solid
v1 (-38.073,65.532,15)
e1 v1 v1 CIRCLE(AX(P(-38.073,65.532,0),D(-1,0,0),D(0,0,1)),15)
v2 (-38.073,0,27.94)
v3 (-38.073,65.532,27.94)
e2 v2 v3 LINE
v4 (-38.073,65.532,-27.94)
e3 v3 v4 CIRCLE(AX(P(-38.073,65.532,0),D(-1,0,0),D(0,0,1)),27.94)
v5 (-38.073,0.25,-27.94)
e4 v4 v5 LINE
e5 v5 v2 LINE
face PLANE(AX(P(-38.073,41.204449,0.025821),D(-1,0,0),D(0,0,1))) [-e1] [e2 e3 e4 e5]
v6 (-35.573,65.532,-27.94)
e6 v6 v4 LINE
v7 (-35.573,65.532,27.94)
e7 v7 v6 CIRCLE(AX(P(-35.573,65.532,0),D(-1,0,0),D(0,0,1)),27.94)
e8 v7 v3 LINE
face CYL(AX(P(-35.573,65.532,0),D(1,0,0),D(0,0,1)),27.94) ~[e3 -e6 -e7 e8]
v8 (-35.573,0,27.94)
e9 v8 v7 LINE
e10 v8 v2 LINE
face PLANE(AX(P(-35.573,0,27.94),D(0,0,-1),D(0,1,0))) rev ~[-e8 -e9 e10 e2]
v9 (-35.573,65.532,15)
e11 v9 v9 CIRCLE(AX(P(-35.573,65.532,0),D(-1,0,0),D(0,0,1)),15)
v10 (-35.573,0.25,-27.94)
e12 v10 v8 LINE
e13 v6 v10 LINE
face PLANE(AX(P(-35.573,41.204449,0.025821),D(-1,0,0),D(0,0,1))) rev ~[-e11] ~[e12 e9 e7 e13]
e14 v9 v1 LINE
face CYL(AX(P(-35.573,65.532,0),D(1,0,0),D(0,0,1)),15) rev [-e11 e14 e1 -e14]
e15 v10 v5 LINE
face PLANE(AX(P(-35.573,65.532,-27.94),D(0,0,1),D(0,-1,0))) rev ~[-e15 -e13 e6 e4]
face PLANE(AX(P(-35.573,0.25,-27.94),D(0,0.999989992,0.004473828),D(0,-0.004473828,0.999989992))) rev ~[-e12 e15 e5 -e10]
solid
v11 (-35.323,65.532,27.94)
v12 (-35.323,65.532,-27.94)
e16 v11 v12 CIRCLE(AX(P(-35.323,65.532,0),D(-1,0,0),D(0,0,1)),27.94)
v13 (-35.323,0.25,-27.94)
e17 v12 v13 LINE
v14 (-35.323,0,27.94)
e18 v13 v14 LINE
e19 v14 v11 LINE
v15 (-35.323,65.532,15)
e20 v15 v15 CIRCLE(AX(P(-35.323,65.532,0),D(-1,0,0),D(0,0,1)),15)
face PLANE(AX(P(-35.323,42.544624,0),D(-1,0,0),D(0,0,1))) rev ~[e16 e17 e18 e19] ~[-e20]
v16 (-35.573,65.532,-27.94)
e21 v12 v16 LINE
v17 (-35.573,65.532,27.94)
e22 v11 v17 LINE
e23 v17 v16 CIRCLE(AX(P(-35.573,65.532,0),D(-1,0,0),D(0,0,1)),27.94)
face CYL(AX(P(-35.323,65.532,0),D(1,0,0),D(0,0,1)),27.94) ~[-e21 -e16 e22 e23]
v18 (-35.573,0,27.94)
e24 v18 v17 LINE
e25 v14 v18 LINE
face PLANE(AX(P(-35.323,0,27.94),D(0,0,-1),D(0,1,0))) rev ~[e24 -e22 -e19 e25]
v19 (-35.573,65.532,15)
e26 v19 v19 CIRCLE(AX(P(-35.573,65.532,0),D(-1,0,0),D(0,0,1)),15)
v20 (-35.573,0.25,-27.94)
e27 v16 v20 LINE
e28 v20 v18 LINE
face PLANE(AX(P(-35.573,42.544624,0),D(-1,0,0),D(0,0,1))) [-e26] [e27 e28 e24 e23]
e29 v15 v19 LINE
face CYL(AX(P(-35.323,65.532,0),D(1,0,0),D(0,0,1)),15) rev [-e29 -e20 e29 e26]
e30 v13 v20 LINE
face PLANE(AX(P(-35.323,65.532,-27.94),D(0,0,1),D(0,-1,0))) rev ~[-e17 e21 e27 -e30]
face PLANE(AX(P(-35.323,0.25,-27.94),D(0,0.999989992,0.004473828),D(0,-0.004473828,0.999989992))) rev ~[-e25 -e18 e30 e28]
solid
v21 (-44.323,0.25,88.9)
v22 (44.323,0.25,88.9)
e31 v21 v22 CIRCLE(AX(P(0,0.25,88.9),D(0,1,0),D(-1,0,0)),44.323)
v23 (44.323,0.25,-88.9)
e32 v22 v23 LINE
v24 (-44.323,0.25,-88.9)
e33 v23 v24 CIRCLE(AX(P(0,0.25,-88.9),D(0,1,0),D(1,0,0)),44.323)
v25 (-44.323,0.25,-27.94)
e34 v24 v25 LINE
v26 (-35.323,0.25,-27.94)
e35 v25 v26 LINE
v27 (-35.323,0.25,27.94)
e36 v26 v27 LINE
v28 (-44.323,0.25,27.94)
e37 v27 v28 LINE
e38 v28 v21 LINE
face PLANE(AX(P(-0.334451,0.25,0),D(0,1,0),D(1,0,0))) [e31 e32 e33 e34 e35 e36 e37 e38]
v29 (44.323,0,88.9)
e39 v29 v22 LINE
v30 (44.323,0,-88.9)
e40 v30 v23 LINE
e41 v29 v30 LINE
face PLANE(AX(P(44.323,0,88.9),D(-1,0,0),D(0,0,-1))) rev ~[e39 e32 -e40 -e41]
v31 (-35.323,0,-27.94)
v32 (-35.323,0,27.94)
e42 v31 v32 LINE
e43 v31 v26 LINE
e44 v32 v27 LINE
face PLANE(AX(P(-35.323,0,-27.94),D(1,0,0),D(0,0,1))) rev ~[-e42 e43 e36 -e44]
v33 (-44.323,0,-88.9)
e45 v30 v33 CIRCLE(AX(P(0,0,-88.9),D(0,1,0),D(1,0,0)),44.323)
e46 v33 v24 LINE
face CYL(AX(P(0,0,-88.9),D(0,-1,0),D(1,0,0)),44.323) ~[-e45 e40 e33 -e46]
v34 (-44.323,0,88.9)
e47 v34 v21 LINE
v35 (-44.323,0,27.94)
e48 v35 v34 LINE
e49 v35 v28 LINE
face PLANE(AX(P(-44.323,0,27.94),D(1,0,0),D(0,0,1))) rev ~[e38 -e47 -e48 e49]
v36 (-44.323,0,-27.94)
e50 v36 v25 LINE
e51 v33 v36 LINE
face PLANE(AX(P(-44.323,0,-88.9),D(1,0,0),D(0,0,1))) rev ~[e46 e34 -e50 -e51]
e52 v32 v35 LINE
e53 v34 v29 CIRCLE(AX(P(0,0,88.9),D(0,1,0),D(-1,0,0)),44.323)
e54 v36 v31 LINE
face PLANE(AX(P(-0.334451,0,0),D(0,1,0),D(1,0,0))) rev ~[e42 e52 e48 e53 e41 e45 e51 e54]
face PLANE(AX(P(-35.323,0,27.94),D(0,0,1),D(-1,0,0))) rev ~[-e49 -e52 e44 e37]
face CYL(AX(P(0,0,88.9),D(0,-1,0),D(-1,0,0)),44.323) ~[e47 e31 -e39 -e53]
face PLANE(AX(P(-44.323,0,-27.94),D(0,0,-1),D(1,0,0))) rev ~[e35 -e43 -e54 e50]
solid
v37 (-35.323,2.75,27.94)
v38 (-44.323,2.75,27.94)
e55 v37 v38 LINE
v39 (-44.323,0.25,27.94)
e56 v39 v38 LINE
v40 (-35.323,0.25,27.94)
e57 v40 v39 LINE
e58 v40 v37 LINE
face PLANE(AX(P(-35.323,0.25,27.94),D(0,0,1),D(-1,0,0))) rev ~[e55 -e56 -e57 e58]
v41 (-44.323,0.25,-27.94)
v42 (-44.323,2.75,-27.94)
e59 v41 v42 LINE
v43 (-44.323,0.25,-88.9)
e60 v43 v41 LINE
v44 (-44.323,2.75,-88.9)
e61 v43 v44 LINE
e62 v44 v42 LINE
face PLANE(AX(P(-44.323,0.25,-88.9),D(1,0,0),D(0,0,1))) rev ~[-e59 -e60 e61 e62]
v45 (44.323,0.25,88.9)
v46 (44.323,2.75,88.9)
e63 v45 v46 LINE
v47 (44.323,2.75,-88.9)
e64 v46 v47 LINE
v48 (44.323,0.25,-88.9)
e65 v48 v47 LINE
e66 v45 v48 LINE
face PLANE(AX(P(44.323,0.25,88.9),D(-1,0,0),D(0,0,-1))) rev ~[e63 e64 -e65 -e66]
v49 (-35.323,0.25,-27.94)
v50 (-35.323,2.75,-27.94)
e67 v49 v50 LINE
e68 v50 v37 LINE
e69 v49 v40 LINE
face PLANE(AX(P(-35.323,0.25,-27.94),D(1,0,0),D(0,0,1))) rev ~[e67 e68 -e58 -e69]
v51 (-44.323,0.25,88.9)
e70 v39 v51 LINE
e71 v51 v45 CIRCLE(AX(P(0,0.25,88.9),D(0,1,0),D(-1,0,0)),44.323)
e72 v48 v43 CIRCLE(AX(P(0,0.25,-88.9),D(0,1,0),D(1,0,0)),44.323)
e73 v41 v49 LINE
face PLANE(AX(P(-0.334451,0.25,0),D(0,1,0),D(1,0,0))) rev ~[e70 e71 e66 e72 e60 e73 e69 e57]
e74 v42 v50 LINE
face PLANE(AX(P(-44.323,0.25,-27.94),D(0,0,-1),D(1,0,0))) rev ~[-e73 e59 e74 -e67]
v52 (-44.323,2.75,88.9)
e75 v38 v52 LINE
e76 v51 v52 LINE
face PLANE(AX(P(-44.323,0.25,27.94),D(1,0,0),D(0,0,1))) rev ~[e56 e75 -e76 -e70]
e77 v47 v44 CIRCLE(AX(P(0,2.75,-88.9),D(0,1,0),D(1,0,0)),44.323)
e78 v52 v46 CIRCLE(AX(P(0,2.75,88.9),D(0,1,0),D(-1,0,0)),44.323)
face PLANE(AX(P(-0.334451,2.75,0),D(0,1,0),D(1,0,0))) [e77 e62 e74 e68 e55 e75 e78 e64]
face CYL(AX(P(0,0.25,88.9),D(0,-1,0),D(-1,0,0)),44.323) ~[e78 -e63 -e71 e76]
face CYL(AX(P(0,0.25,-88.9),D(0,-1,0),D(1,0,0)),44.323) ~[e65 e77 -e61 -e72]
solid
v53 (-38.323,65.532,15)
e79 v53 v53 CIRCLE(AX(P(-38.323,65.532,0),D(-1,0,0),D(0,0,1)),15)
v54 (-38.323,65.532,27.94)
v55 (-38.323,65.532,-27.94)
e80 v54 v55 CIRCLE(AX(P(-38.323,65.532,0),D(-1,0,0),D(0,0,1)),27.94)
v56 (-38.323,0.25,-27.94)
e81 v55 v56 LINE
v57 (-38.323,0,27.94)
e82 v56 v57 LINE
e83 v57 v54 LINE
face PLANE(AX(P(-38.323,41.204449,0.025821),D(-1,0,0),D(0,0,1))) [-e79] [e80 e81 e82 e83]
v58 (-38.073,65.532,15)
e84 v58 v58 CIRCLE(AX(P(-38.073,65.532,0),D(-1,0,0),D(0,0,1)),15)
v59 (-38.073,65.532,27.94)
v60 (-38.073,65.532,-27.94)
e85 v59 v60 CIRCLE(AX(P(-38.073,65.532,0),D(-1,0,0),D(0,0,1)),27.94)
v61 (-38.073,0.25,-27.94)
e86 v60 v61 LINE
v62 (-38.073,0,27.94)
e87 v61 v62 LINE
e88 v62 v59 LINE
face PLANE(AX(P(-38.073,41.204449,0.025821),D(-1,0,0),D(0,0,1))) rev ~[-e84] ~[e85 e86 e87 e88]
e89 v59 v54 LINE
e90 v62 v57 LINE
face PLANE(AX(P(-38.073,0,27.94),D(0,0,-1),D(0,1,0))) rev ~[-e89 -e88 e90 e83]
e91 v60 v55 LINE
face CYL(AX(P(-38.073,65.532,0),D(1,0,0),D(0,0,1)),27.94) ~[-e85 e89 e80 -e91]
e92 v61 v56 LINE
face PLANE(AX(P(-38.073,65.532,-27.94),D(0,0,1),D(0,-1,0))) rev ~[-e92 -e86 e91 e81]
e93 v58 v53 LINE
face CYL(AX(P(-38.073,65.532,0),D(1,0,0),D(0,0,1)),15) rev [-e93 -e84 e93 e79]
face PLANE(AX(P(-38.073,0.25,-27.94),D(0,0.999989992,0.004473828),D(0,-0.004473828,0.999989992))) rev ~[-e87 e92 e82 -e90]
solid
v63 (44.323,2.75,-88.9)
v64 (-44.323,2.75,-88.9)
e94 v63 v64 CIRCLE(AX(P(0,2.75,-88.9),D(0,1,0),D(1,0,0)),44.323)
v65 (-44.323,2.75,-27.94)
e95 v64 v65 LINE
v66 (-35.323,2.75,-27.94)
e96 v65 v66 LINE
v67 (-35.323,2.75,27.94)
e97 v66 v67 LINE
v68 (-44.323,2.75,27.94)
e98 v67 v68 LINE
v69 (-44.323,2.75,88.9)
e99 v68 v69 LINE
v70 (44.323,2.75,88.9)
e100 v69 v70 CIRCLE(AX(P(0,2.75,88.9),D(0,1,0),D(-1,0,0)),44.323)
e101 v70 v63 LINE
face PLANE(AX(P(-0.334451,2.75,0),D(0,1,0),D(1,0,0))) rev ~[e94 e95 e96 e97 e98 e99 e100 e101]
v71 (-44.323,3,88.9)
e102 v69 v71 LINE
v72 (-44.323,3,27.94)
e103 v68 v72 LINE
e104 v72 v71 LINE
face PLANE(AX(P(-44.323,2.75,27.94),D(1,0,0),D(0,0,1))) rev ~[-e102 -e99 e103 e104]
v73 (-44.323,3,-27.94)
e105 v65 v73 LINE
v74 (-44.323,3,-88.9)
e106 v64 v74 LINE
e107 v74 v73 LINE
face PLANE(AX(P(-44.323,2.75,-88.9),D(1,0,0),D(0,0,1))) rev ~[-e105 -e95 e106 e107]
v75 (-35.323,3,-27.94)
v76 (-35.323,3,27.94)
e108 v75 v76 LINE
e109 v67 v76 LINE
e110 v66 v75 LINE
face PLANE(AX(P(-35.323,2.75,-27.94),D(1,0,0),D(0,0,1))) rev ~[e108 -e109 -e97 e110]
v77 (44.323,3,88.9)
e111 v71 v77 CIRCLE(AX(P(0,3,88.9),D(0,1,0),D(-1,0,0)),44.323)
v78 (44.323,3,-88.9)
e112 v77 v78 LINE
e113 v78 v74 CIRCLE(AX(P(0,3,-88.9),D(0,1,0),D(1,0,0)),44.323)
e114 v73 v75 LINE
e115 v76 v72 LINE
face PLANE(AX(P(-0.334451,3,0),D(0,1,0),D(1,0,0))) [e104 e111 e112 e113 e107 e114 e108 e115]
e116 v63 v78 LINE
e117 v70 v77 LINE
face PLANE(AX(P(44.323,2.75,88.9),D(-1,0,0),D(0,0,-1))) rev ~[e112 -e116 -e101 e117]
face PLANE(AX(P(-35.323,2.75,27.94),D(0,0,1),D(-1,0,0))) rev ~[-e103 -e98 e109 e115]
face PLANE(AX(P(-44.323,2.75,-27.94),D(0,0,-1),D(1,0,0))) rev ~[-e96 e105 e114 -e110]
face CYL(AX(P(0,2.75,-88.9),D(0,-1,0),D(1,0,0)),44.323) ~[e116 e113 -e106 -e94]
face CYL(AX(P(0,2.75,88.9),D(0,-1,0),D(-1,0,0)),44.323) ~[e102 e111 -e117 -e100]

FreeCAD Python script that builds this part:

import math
import FreeCAD as App
import Part
import Sketcher
from FreeCAD import Vector
Q = App.Units.Quantity

doc = App.newDocument("Part")
body = doc.addObject("PartDesign::Body", "Body")

# Sketch on XZ plane
sketch1 = doc.addObject("Sketcher::SketchObject", "Sketch")
body.addObject(sketch1)
sketch1.AttachmentSupport = (doc.XZ_Plane, [""])
sketch1.MapMode = "FlatFace"
sketch1.addGeometry([
    Part.LineSegment(Vector(-44.323, -88.9, 0), Vector(-44.323, -27.94, 0)),  # 0
    Part.LineSegment(Vector(-44.323, -27.94, 0), Vector(-35.323, -27.94, 0)),  # 1
    Part.LineSegment(Vector(-35.323, -27.94, 0), Vector(-35.323, 27.94, 0)),  # 2
    Part.LineSegment(Vector(-35.323, 27.94, 0), Vector(-44.323, 27.94, 0)),  # 3
    Part.LineSegment(Vector(-44.323, 27.94, 0), Vector(-44.323, 88.9, 0)),  # 4
    Part.ArcOfCircle(Part.Circle(Vector(0, 88.9, 0), Vector(0, 0, 1), 44.323), math.radians(0), math.radians(180)),  # 5
    Part.LineSegment(Vector(44.323, 88.9, 0), Vector(44.323, -88.9, 0)),  # 6
    Part.ArcOfCircle(Part.Circle(Vector(0, -88.9, 0), Vector(0, 0, 1), 44.323), math.radians(180), math.radians(360)),  # 7
], False)
sketch1.addConstraint([
    Sketcher.Constraint("Coincident", 0, 2, 1, 1),
    Sketcher.Constraint("Coincident", 1, 2, 2, 1),
    Sketcher.Constraint("Coincident", 2, 2, 3, 1),
    Sketcher.Constraint("Coincident", 3, 2, 4, 1),
    Sketcher.Constraint("Tangent", 4, 2, 5, 2),
    Sketcher.Constraint("Tangent", 5, 1, 6, 1),
    Sketcher.Constraint("Tangent", 6, 2, 7, 2),
    Sketcher.Constraint("Tangent", 7, 1, 0, 1),
    Sketcher.Constraint("Vertical", 0),
    Sketcher.Constraint("Horizontal", 1),
    Sketcher.Constraint("Vertical", 2),
    Sketcher.Constraint("Horizontal", 3),
    Sketcher.Constraint("Vertical", 4),
    Sketcher.Constraint("Vertical", 6),
    Sketcher.Constraint("Equal", 5, 7),
    Sketcher.Constraint("Symmetric", 5, 3, 7, 3, -1, 1),
    Sketcher.Constraint("Equal", 0, 4),
    Sketcher.Constraint("DistanceY", 6, 2, 6, 1, Q("7 in")),
    Sketcher.Constraint("DistanceY", 0, 1, 0, 2, Q("2.4 in")),
    Sketcher.Constraint("Radius", 5, Q("1.745 in")),
    Sketcher.Constraint("DistanceX", 1, 1, 1, 2, 9.0),
])
pad1 = doc.addObject("PartDesign::Pad", "Pad")
body.addObject(pad1)
pad1.Profile = sketch1
pad1.Length = 0.25
pad1.Reversed = True
body2 = doc.addObject("PartDesign::Body", "Body001")

# Sketch on XZ plane
sketch2 = doc.addObject("Sketcher::SketchObject", "Sketch001")
body2.addObject(sketch2)
sketch2.AttachmentSupport = (doc.getObject("XZ_Plane001"), [""])
sketch2.MapMode = "FlatFace"
sketch2.AttachmentOffset = App.Placement(Vector(0, 0, -0.25), App.Rotation())
sketch2.addGeometry([
    Part.LineSegment(Vector(-44.323, -27.94, 0), Vector(-35.323, -27.94, 0)),  # 0
    Part.LineSegment(Vector(-35.323, -27.94, 0), Vector(-35.323, 27.94, 0)),  # 1
    Part.LineSegment(Vector(-35.323, 27.94, 0), Vector(-44.323, 27.94, 0)),  # 2
    Part.LineSegment(Vector(-44.323, 27.94, 0), Vector(-44.323, 88.9, 0)),  # 3
    Part.ArcOfCircle(Part.Circle(Vector(0, 88.9, 0), Vector(0, 0, 1), 44.323), math.radians(0), math.radians(180)),  # 4
    Part.LineSegment(Vector(44.323, 88.9, 0), Vector(44.323, -88.9, 0)),  # 5
    Part.ArcOfCircle(Part.Circle(Vector(0, -88.9, 0), Vector(0, 0, 1), 44.323), math.radians(180), math.radians(360)),  # 6
    Part.LineSegment(Vector(-44.323, -88.9, 0), Vector(-44.323, -27.94, 0)),  # 7
], False)
sketch2.addConstraint([
    Sketcher.Constraint("Coincident", 0, 2, 1, 1),
    Sketcher.Constraint("Coincident", 1, 2, 2, 1),
    Sketcher.Constraint("Coincident", 2, 2, 3, 1),
    Sketcher.Constraint("Tangent", 3, 2, 4, 2),
    Sketcher.Constraint("Tangent", 4, 1, 5, 1),
    Sketcher.Constraint("Tangent", 5, 2, 6, 2),
    Sketcher.Constraint("Tangent", 6, 1, 7, 1),
    Sketcher.Constraint("Coincident", 7, 2, 0, 1),
    Sketcher.Constraint("Horizontal", 0),
    Sketcher.Constraint("Vertical", 1),
    Sketcher.Constraint("Horizontal", 2),
    Sketcher.Constraint("Vertical", 3),
    Sketcher.Constraint("Vertical", 5),
    Sketcher.Constraint("Vertical", 7),
    Sketcher.Constraint("Equal", 4, 6),
    Sketcher.Constraint("Symmetric", 4, 3, 6, 3, -1, 1),
    Sketcher.Constraint("Equal", 3, 7),
    Sketcher.Constraint("DistanceY", 5, 2, 5, 1, Q("7 in")),
    Sketcher.Constraint("DistanceY", 1, 1, 1, 2, Q("2.2 in")),
    Sketcher.Constraint("Radius", 4, Q("1.745 in")),
    Sketcher.Constraint("DistanceX", 0, 1, 0, 2, 9.0),
])
pad2 = doc.addObject("PartDesign::Pad", "Pad001")
body2.addObject(pad2)
pad2.Profile = sketch2
pad2.Length = 2.5
pad2.Reversed = True
body3 = doc.addObject("PartDesign::Body", "Body002")

# Sketch on XZ plane
sketch3 = doc.addObject("Sketcher::SketchObject", "Sketch002")
body3.addObject(sketch3)
sketch3.AttachmentSupport = (doc.getObject("XZ_Plane002"), [""])
sketch3.MapMode = "FlatFace"
sketch3.AttachmentOffset = App.Placement(Vector(0, 0, -2.75), App.Rotation())
sketch3.addGeometry([
    Part.LineSegment(Vector(-35.323, 27.94, 0), Vector(-44.323, 27.94, 0)),  # 0
    Part.LineSegment(Vector(-44.323, 27.94, 0), Vector(-44.323, 88.9, 0)),  # 1
    Part.ArcOfCircle(Part.Circle(Vector(0, 88.9, 0), Vector(0, 0, 1), 44.323), math.radians(0), math.radians(180)),  # 2
    Part.LineSegment(Vector(44.323, 88.9, 0), Vector(44.323, -88.9, 0)),  # 3
    Part.ArcOfCircle(Part.Circle(Vector(0, -88.9, 0), Vector(0, 0, 1), 44.323), math.radians(180), math.radians(360)),  # 4
    Part.LineSegment(Vector(-44.323, -88.9, 0), Vector(-44.323, -27.94, 0)),  # 5
    Part.LineSegment(Vector(-44.323, -27.94, 0), Vector(-35.323, -27.94, 0)),  # 6
    Part.LineSegment(Vector(-35.323, -27.94, 0), Vector(-35.323, 27.94, 0)),  # 7
], False)
sketch3.addConstraint([
    Sketcher.Constraint("Coincident", 0, 2, 1, 1),
    Sketcher.Constraint("Tangent", 1, 2, 2, 2),
    Sketcher.Constraint("Tangent", 2, 1, 3, 1),
    Sketcher.Constraint("Tangent", 3, 2, 4, 2),
    Sketcher.Constraint("Tangent", 4, 1, 5, 1),
    Sketcher.Constraint("Coincident", 5, 2, 6, 1),
    Sketcher.Constraint("Coincident", 6, 2, 7, 1),
    Sketcher.Constraint("Coincident", 7, 2, 0, 1),
    Sketcher.Constraint("Horizontal", 0),
    Sketcher.Constraint("Vertical", 1),
    Sketcher.Constraint("Vertical", 3),
    Sketcher.Constraint("Vertical", 5),
    Sketcher.Constraint("Horizontal", 6),
    Sketcher.Constraint("Vertical", 7),
    Sketcher.Constraint("Equal", 2, 4),
    Sketcher.Constraint("Symmetric", 2, 3, 4, 3, -1, 1),
    Sketcher.Constraint("Equal", 1, 5),
    Sketcher.Constraint("DistanceY", 3, 2, 3, 1, Q("7 in")),
    Sketcher.Constraint("DistanceY", 1, 1, 1, 2, Q("2.4 in")),
    Sketcher.Constraint("Radius", 2, Q("1.745 in")),
    Sketcher.Constraint("DistanceX", 0, 2, 0, 1, 9.0),
])
pad3 = doc.addObject("PartDesign::Pad", "Pad002")
body3.addObject(pad3)
pad3.Profile = sketch3
pad3.Length = 0.25
pad3.Reversed = True
body4 = doc.addObject("PartDesign::Body", "Body003")

# Sketch on YZ plane
sketch4 = doc.addObject("Sketcher::SketchObject", "Sketch003")
body4.addObject(sketch4)
sketch4.AttachmentSupport = (doc.getObject("YZ_Plane003"), [""])
sketch4.MapMode = "FlatFace"
sketch4.AttachmentOffset = App.Placement(Vector(0, 0, -35.323), App.Rotation())
sketch4.addGeometry([
    Part.ArcOfCircle(Part.Circle(Vector(65.532, 0, 0), Vector(0, 0, 1), 27.94), math.radians(-90), math.radians(90)),  # 0
    Part.LineSegment(Vector(65.532, -27.94, 0), Vector(0.25, -27.94, 0)),  # 1
    Part.LineSegment(Vector(0.25, -27.94, 0), Vector(0, 27.94, 0)),  # 2
    Part.LineSegment(Vector(0, 27.94, 0), Vector(65.532, 27.94, 0)),  # 3
    Part.Circle(Vector(65.532, 0, 0), Vector(0, 0, 1), 15),  # 4
], False)
sketch4.addConstraint([
    Sketcher.Constraint("Tangent", 0, 1, 1, 1),
    Sketcher.Constraint("Coincident", 1, 2, 2, 1),
    Sketcher.Constraint("Coincident", 2, 2, 3, 1),
    Sketcher.Constraint("Tangent", 3, 2, 0, 2),
    Sketcher.Constraint("Horizontal", 1),
    Sketcher.Constraint("Horizontal", 3),
    Sketcher.Constraint("Coincident", 4, 3, 0, 3),
    Sketcher.Constraint("PointOnObject", 0, 3, -1),
    Sketcher.Constraint("PointOnObject", 2, 2, -2),
    Sketcher.Constraint("Radius", 0, Q("1.1 in")),
    Sketcher.Constraint("DistanceX", 3, 1, 3, 2, Q("2.58 in")),
    Sketcher.Constraint("Diameter", 4, 30.0),
    Sketcher.Constraint("DistanceX", 1, 2, 1, 1, 65.282),
])
pad4 = doc.addObject("PartDesign::Pad", "Pad003")
body4.addObject(pad4)
pad4.Profile = sketch4
pad4.Length = 0.25
pad4.Reversed = True
body5 = doc.addObject("PartDesign::Body", "Body004")

# Sketch on YZ plane
sketch5 = doc.addObject("Sketcher::SketchObject", "Sketch004")
body5.addObject(sketch5)
sketch5.AttachmentSupport = (doc.getObject("YZ_Plane004"), [""])
sketch5.MapMode = "FlatFace"
sketch5.AttachmentOffset = App.Placement(Vector(0, 0, -35.573), App.Rotation())
sketch5.addGeometry([
    Part.LineSegment(Vector(0, 27.94, 0), Vector(65.532, 27.94, 0)),  # 0
    Part.ArcOfCircle(Part.Circle(Vector(65.532, 0, 0), Vector(0, 0, 1), 27.94), math.radians(-90), math.radians(90)),  # 1
    Part.LineSegment(Vector(65.532, -27.94, 0), Vector(0.25, -27.94, 0)),  # 2
    Part.LineSegment(Vector(0.25, -27.94, 0), Vector(0, 27.94, 0)),  # 3
    Part.Circle(Vector(65.532, 0, 0), Vector(0, 0, 1), 15),  # 4
], False)
sketch5.addConstraint([
    Sketcher.Constraint("Tangent", 0, 2, 1, 2),
    Sketcher.Constraint("Tangent", 1, 1, 2, 1),
    Sketcher.Constraint("Coincident", 2, 2, 3, 1),
    Sketcher.Constraint("Coincident", 3, 2, 0, 1),
    Sketcher.Constraint("Horizontal", 0),
    Sketcher.Constraint("Horizontal", 2),
    Sketcher.Constraint("Coincident", 4, 3, 1, 3),
    Sketcher.Constraint("PointOnObject", 1, 3, -1),
    Sketcher.Constraint("PointOnObject", 3, 2, -2),
    Sketcher.Constraint("Radius", 1, Q("1.1 in")),
    Sketcher.Constraint("DistanceX", 0, 1, 0, 2, Q("2.58 in")),
    Sketcher.Constraint("Diameter", 4, 30.0),
    Sketcher.Constraint("DistanceX", 2, 2, 2, 1, 65.282),
])
pad5 = doc.addObject("PartDesign::Pad", "Pad004")
body5.addObject(pad5)
pad5.Profile = sketch5
pad5.Length = 2.5
pad5.Reversed = True
body6 = doc.addObject("PartDesign::Body", "Body005")

# Sketch on YZ plane
sketch6 = doc.addObject("Sketcher::SketchObject", "Sketch005")
body6.addObject(sketch6)
sketch6.AttachmentSupport = (doc.getObject("YZ_Plane005"), [""])
sketch6.MapMode = "FlatFace"
sketch6.AttachmentOffset = App.Placement(Vector(0, 0, -38.073), App.Rotation())
sketch6.addGeometry([
    Part.LineSegment(Vector(65.532, -27.94, 0), Vector(0.25, -27.94, 0)),  # 0
    Part.LineSegment(Vector(0.25, -27.94, 0), Vector(0, 27.94, 0)),  # 1
    Part.LineSegment(Vector(0, 27.94, 0), Vector(65.532, 27.94, 0)),  # 2
    Part.ArcOfCircle(Part.Circle(Vector(65.532, 0, 0), Vector(0, 0, 1), 27.94), math.radians(-90), math.radians(90)),  # 3
    Part.Circle(Vector(65.532, 0, 0), Vector(0, 0, 1), 15),  # 4
], False)
sketch6.addConstraint([
    Sketcher.Constraint("Coincident", 0, 2, 1, 1),
    Sketcher.Constraint("Coincident", 1, 2, 2, 1),
    Sketcher.Constraint("Tangent", 2, 2, 3, 2),
    Sketcher.Constraint("Tangent", 3, 1, 0, 1),
    Sketcher.Constraint("Horizontal", 0),
    Sketcher.Constraint("Horizontal", 2),
    Sketcher.Constraint("Coincident", 4, 3, 3, 3),
    Sketcher.Constraint("PointOnObject", 3, 3, -1),
    Sketcher.Constraint("PointOnObject", 1, 2, -2),
    Sketcher.Constraint("Radius", 3, Q("1.1 in")),
    Sketcher.Constraint("DistanceX", 2, 1, 2, 2, Q("2.58 in")),
    Sketcher.Constraint("Diameter", 4, 30.0),
    Sketcher.Constraint("DistanceX", 0, 2, 0, 1, 65.282),
])
pad6 = doc.addObject("PartDesign::Pad", "Pad005")
body6.addObject(pad6)
pad6.Profile = sketch6
pad6.Length = 0.25
pad6.Reversed = True

doc.recompute()
